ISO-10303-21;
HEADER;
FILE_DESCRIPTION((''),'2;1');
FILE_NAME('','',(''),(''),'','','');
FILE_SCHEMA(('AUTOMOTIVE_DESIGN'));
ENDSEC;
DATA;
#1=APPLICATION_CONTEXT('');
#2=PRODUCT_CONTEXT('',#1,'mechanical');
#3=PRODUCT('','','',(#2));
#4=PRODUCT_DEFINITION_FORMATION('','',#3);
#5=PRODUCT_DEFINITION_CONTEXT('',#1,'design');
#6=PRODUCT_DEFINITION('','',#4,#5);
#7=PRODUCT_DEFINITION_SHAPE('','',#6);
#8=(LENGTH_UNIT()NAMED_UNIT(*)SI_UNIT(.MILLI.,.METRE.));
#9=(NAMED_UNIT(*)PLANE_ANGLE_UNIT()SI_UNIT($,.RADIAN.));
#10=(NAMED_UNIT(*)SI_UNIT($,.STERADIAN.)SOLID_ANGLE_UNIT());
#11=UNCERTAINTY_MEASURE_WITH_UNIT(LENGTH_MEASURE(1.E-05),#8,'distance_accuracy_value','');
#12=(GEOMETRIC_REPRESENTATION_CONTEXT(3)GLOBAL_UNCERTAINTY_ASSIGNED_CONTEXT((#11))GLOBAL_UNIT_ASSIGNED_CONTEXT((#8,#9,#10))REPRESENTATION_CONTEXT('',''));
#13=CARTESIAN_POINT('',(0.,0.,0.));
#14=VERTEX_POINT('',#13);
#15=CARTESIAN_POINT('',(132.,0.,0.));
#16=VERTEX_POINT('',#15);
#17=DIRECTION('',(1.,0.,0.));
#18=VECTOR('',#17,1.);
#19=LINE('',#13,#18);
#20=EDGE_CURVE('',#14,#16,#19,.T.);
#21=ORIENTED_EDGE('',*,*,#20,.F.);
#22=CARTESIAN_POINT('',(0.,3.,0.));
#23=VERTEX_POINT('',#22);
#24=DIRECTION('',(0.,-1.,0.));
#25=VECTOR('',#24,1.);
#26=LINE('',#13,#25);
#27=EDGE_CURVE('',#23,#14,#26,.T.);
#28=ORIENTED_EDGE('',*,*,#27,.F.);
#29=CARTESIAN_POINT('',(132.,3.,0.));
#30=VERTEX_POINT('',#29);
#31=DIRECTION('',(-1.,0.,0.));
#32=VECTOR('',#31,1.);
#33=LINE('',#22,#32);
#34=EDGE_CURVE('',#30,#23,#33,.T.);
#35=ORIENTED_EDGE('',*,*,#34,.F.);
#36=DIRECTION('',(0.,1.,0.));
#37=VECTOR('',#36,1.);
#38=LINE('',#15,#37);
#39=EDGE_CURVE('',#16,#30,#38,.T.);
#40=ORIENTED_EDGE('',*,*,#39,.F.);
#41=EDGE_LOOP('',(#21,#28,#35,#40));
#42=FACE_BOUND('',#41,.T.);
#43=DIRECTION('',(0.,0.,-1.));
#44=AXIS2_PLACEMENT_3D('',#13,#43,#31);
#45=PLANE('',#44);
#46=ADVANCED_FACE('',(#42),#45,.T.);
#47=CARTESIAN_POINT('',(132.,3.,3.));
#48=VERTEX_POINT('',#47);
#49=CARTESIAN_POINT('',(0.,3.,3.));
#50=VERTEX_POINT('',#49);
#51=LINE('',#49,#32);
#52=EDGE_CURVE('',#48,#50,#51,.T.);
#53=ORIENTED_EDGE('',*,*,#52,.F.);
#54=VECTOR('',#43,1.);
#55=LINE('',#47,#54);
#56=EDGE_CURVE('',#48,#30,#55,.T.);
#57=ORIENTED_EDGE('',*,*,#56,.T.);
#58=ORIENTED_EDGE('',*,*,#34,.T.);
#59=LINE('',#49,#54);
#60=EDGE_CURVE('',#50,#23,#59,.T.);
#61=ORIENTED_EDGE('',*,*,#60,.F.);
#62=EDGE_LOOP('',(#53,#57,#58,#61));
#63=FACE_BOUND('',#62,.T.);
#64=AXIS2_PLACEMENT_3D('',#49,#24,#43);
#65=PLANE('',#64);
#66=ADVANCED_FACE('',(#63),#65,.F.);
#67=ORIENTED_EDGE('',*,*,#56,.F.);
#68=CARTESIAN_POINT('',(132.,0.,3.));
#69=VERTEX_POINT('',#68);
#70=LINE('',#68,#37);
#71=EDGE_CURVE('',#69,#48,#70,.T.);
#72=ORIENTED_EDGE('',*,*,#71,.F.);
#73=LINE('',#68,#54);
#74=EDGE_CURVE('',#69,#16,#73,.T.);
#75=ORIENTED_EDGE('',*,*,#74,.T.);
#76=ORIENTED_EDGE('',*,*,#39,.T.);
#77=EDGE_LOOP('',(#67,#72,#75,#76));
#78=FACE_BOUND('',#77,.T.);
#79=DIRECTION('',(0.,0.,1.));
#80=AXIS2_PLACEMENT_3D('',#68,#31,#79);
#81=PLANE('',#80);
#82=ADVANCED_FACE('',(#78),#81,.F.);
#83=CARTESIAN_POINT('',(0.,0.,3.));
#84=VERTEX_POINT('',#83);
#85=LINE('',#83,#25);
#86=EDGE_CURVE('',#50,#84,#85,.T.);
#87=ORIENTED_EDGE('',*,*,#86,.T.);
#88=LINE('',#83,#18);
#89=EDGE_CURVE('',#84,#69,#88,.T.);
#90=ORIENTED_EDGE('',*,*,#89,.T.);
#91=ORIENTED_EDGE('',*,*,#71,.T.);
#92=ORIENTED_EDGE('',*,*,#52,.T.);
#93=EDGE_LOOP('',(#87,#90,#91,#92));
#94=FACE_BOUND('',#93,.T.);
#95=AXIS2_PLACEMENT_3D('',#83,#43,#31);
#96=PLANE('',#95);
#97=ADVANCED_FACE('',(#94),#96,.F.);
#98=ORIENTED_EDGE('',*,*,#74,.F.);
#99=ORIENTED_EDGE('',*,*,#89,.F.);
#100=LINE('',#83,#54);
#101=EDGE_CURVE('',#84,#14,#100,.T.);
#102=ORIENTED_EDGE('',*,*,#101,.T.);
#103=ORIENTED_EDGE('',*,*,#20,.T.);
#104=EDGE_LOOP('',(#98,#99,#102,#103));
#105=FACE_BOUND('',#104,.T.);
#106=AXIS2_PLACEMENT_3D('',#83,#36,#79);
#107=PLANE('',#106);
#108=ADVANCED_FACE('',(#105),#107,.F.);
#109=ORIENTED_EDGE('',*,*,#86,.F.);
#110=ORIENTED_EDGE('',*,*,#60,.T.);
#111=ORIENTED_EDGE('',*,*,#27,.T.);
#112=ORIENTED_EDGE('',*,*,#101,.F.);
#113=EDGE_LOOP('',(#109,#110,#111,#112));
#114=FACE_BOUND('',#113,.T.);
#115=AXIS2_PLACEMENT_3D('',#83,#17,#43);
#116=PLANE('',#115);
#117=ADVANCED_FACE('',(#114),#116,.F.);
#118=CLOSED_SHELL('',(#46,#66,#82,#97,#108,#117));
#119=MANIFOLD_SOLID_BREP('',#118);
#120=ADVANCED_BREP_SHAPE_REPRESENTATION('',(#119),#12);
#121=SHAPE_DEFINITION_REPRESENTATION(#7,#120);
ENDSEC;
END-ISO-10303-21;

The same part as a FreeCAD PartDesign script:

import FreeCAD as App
import Part
import Sketcher

V = App.Vector


def add_polygon(sketch, points):
    """Adds a closed chain of lines whose ends are joined by coincident constraints."""
    first, n = sketch.GeometryCount, len(points)
    for a, b in zip(points, points[1:] + points[:1]):
        sketch.addGeometry(Part.LineSegment(App.Vector(*a, 0), App.Vector(*b, 0)), False)
    for i in range(n):
        sketch.addConstraint(Sketcher.Constraint("Coincident", first + i, 2, first + (i + 1) % n, 1))

doc = App.newDocument("Part")
params = doc.addObject("Spreadsheet::Sheet", "Params")
for row, (alias, value) in enumerate([
    ("sketch1_width", "132 mm"),
    ("sketch1_height", "3 mm"),
    ("pad1_length", "3 mm"),
], start=1):
    params.set(f"A{row}", alias)
    params.set(f"B{row}", "=" + value)
    params.setAlias(f"B{row}", alias)

body = doc.addObject("PartDesign::Body", "Body")

sketch1 = body.newObject("Sketcher::SketchObject", "Sketch")
sketch1.AttachmentSupport = (doc.getObject("XY_Plane"), [""])
sketch1.MapMode = "FlatFace"
add_polygon(sketch1, [(0, 3), (0, 0), (132, 0), (132, 3)])
sketch1.addConstraint(Sketcher.Constraint("Vertical", 0))
sketch1.addConstraint(Sketcher.Constraint("Horizontal", 1))
sketch1.addConstraint(Sketcher.Constraint("Vertical", 2))
sketch1.addConstraint(Sketcher.Constraint("Horizontal", 3))
sketch1.addConstraint(Sketcher.Constraint("Coincident", 0, 2, -1, 1))
sketch1.addConstraint(Sketcher.Constraint("DistanceX", 1, 1, 1, 2, 132.0))
sketch1.addConstraint(Sketcher.Constraint("DistanceY", 0, 2, 0, 1, 3.0))
sketch1.setExpression("Constraints[9]", "Params.sketch1_width")
sketch1.setExpression("Constraints[10]", "Params.sketch1_height")
pad1 = body.newObject("PartDesign::Pad", "Pad")
pad1.Profile = sketch1
pad1.setExpression("Length", "Params.pad1_length")

doc.recompute()
